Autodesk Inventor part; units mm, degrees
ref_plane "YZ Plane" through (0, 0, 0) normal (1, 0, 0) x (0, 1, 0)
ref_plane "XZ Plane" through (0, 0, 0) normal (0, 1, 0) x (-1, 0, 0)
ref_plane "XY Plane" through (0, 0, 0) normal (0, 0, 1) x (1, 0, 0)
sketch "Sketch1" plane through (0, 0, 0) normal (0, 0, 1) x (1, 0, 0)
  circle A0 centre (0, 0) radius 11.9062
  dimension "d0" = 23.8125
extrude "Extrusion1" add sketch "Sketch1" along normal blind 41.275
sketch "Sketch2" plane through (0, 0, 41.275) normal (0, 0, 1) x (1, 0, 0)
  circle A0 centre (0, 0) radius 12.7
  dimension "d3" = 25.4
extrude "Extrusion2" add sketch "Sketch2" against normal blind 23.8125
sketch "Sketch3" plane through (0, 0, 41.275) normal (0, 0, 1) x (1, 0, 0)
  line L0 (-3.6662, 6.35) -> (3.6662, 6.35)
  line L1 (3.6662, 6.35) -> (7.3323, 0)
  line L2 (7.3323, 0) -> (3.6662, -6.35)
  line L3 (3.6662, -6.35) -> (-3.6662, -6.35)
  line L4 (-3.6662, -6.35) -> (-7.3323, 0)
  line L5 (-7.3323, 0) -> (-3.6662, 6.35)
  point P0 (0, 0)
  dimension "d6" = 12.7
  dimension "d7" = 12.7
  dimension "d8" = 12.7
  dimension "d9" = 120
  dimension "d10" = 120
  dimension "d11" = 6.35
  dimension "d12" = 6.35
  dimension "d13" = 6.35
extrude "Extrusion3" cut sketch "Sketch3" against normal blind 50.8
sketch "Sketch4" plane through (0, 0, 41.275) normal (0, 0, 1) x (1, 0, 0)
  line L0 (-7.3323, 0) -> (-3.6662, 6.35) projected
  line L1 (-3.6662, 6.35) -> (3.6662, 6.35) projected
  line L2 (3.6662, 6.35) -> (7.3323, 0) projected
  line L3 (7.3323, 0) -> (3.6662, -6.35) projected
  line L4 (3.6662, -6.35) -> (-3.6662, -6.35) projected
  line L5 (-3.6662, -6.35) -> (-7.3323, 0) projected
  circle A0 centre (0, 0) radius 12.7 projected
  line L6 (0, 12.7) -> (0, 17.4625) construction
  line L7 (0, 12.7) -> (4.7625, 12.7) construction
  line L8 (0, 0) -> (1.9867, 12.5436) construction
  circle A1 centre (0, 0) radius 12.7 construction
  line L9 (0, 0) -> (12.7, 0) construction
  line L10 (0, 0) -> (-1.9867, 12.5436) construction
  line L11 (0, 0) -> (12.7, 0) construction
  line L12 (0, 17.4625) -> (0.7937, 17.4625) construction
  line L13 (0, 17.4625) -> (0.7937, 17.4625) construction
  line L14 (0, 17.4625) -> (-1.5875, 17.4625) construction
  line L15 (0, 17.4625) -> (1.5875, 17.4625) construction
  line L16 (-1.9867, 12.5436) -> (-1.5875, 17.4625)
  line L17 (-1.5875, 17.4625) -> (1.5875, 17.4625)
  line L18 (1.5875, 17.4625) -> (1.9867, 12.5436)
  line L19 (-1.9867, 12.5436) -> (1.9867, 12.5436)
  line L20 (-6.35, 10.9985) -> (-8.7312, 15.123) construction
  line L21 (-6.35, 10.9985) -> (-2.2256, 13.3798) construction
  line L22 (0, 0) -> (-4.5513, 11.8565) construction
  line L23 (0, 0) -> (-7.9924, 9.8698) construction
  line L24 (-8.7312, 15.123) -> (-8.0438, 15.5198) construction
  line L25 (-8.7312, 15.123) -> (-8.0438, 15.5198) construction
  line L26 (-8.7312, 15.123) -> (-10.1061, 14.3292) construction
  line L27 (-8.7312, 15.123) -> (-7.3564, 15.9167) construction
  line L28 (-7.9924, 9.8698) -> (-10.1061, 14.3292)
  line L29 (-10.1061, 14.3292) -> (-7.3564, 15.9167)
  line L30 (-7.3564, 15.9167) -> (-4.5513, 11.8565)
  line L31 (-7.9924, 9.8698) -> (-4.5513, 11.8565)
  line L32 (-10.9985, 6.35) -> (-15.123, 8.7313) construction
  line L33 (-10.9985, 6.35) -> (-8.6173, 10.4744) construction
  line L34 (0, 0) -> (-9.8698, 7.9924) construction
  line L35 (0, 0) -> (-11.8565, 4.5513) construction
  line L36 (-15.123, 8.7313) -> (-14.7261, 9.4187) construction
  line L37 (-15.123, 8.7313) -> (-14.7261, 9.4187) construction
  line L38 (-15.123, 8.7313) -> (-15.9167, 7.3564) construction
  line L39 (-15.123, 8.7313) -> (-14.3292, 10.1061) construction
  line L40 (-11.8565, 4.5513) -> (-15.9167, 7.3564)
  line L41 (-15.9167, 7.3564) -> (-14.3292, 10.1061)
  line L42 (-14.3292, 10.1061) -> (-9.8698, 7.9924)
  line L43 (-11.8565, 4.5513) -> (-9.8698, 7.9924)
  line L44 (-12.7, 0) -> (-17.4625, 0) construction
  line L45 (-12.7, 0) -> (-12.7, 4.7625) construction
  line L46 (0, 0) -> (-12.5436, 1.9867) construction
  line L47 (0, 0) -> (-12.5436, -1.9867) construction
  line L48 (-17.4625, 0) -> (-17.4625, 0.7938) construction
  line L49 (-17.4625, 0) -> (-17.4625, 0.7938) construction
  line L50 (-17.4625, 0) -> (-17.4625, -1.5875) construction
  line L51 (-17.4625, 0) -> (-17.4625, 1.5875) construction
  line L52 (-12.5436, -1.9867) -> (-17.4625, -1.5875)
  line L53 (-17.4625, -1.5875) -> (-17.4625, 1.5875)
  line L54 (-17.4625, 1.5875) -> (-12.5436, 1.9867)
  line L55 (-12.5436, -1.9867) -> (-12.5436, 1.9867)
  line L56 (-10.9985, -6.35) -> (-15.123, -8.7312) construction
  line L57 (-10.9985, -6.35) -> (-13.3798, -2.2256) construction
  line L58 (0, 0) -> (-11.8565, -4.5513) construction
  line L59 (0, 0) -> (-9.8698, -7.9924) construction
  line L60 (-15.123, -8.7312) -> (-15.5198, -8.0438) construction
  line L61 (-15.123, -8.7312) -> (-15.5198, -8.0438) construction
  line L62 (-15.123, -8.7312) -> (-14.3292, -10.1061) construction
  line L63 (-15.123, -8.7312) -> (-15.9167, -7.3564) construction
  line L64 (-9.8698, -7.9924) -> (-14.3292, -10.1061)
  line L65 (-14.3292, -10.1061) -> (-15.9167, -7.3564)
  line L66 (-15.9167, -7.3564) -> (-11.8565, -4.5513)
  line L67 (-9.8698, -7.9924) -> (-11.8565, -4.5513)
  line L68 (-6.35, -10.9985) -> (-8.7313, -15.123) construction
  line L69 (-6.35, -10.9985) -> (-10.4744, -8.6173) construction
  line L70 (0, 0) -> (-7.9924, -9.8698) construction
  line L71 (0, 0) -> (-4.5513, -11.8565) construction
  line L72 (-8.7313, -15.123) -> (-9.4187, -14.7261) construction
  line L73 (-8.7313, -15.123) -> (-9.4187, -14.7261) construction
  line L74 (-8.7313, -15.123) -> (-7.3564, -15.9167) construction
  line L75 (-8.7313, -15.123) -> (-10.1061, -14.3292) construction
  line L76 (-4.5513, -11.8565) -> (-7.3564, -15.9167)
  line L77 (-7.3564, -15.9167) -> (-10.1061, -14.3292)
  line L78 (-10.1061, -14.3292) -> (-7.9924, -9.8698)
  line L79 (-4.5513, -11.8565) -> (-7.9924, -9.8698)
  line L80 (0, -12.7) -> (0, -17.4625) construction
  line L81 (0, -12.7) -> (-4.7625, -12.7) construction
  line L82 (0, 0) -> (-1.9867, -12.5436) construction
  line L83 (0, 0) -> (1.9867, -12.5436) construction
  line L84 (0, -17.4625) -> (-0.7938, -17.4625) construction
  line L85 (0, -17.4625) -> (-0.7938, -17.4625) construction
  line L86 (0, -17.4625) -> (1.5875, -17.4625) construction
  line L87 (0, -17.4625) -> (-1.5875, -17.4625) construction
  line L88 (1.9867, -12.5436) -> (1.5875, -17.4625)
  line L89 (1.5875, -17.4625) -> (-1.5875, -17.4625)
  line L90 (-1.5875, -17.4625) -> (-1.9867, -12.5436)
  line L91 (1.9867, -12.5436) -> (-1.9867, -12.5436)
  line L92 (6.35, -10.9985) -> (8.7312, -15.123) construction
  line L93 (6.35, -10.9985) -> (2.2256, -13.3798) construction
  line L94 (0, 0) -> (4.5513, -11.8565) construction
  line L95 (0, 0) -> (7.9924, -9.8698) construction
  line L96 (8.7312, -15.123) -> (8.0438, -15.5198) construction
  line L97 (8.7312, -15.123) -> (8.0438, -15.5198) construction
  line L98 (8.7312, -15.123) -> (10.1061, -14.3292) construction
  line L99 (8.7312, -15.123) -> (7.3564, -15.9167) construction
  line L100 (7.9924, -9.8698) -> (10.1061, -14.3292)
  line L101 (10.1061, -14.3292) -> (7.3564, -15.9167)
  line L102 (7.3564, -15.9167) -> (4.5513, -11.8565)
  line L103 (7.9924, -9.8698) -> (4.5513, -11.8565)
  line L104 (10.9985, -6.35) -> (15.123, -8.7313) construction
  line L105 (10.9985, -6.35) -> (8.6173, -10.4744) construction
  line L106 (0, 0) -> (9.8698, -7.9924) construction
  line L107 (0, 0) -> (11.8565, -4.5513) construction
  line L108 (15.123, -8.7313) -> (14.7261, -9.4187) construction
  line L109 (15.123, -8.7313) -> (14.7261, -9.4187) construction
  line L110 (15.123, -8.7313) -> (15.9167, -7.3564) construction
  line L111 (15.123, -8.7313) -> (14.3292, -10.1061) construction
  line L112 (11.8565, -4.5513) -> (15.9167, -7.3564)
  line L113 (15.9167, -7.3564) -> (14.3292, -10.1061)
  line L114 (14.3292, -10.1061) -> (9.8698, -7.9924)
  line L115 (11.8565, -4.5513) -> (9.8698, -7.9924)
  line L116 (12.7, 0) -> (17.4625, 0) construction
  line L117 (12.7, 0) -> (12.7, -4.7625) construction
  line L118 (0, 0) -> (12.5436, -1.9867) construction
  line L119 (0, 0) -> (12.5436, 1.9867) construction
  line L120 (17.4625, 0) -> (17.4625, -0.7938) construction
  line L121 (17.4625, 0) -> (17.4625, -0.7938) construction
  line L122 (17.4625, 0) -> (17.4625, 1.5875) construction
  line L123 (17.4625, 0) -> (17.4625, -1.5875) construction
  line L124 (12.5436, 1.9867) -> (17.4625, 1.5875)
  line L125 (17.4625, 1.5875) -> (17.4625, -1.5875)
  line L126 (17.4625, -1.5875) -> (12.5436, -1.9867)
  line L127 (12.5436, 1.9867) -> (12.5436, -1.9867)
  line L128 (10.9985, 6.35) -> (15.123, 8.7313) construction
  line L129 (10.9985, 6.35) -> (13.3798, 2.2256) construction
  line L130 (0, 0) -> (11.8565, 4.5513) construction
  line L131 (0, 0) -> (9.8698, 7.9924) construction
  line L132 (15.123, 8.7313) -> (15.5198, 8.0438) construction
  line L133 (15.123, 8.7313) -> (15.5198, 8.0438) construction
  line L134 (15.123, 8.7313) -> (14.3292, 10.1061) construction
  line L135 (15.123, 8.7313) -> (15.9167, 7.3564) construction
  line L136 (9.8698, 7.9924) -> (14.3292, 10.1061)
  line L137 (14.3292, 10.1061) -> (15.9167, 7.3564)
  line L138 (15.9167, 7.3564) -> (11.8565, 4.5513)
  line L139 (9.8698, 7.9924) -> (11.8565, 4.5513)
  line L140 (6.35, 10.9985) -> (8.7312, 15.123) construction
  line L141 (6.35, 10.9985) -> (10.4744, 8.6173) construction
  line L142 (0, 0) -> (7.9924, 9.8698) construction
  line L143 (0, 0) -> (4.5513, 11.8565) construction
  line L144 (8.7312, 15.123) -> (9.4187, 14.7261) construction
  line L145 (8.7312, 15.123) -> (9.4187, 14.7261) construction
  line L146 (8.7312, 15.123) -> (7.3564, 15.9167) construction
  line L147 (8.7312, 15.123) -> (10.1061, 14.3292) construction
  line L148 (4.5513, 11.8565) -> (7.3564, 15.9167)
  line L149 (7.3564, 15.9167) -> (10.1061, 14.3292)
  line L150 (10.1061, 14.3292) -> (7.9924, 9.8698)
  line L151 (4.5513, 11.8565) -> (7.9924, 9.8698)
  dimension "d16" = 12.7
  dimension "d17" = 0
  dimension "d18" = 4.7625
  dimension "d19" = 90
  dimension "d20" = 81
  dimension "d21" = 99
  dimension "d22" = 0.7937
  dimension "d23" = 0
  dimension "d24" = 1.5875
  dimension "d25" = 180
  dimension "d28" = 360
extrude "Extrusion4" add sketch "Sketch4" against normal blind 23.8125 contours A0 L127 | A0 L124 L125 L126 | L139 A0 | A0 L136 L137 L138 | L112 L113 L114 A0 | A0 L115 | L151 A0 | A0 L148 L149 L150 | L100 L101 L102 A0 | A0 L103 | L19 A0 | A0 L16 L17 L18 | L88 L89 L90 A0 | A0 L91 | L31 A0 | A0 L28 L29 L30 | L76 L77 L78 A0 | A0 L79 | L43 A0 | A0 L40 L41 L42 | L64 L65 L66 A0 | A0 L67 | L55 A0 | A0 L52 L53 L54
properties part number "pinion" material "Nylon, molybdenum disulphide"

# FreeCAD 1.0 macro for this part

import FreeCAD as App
import Part
import Sketcher
from FreeCAD import Vector
Q = App.Units.Quantity


def add_polygon(sketch, points):
    """Adds a closed chain of lines whose ends are joined by coincident constraints."""
    first, n = sketch.GeometryCount, len(points)
    for a, b in zip(points, points[1:] + points[:1]):
        sketch.addGeometry(Part.LineSegment(App.Vector(*a, 0), App.Vector(*b, 0)), False)
    for i in range(n):
        sketch.addConstraint(Sketcher.Constraint("Coincident", first + i, 2, first + (i + 1) % n, 1))

doc = App.newDocument("Part")
body = doc.addObject("PartDesign::Body", "Body")

# Sketch on XY plane
sketch1 = body.newObject("Sketcher::SketchObject", "Sketch")
sketch1.AttachmentSupport = (doc.getObject("XY_Plane"), [""])
sketch1.MapMode = "FlatFace"
sketch1.addGeometry(Part.Circle(Vector(0, 0, 0), Vector(0, 0, 1), 11.9062), False)
sketch1.addConstraint(Sketcher.Constraint("Coincident", 0, 3, -1, 1))
sketch1.addConstraint(Sketcher.Constraint("Diameter", 0, Q("0.9375 in")))
pad1 = body.newObject("PartDesign::Pad", "Pad")
pad1.Profile = sketch1
pad1.Length = Q("1.625 in")

# Sketch on XY plane
sketch2 = body.newObject("Sketcher::SketchObject", "Sketch001")
sketch2.AttachmentSupport = (doc.getObject("XY_Plane"), [""])
sketch2.MapMode = "FlatFace"
sketch2.AttachmentOffset = App.Placement(Vector(0, 0, 1.625 * 25.4), App.Rotation())
sketch2.addGeometry(Part.Circle(Vector(0, 0, 0), Vector(0, 0, 1), 12.7), False)
sketch2.addConstraint(Sketcher.Constraint("Coincident", 0, 3, -1, 1))
sketch2.addConstraint(Sketcher.Constraint("Diameter", 0, Q("1 in")))
pad2 = body.newObject("PartDesign::Pad", "Pad001")
pad2.Profile = sketch2
pad2.Length = Q("0.9375 in")
pad2.Reversed = True

# Sketch on XY plane
sketch3 = body.newObject("Sketcher::SketchObject", "Sketch002")
sketch3.AttachmentSupport = (doc.getObject("XY_Plane"), [""])
sketch3.MapMode = "FlatFace"
sketch3.AttachmentOffset = App.Placement(Vector(0, 0, 1.625 * 25.4), App.Rotation())
add_polygon(sketch3, [(3.6662, 6.35), (-3.6662, 6.35), (-7.3323, 0), (-3.6662, -6.35), (3.6662, -6.35), (7.3323, 0)])  # lines 0-5
sketch3.addConstraint(Sketcher.Constraint("Horizontal", 0))
sketch3.addConstraint(Sketcher.Constraint("Horizontal", 3))
sketch3.addConstraint(Sketcher.Constraint("Symmetric", 0, 2, 3, 2, -1, 1))
sketch3.addConstraint(Sketcher.Constraint("Symmetric", 1, 2, 4, 2, -1, 1))
sketch3.addConstraint(Sketcher.Constraint("PointOnObject", 1, 2, -1))
sketch3.addConstraint(Sketcher.Constraint("Parallel", 2, 5))
sketch3.addConstraint(Sketcher.Constraint("Vertical", 0, 2, 2, 2))
sketch3.addConstraint(Sketcher.Constraint("Angle", 1, Q("-119.9995 deg")))
sketch3.addConstraint(Sketcher.Constraint("DistanceY", 2, 2, 0, 2, Q("0.5 in")))
sketch3.addConstraint(Sketcher.Constraint("DistanceX", 1, 2, 3, 2, Q("0.433 in")))
pocket1 = body.newObject("PartDesign::Pocket", "Pocket")
pocket1.Profile = sketch3
pocket1.Length = Q("2 in")

# Sketch on XY plane
sketch4 = body.newObject("Sketcher::SketchObject", "Sketch003")
sketch4.AttachmentSupport = (doc.getObject("XY_Plane"), [""])
sketch4.MapMode = "FlatFace"
sketch4.AttachmentOffset = App.Placement(Vector(0, 0, 1.625 * 25.4), App.Rotation())
add_polygon(sketch4, [(12.5436, 1.9867), (12.5436, -1.9867), (17.4625, -1.5875), (17.4625, 1.5875)])  # lines 0-3
add_polygon(sketch4, [(9.8698, 7.9924), (11.8565, 4.5513), (15.9167, 7.3564), (14.3292, 10.1061)])  # lines 4-7
add_polygon(sketch4, [(15.9167, -7.3564), (11.8565, -4.5513), (9.8698, -7.9924), (14.3292, -10.1061)])  # lines 8-11
add_polygon(sketch4, [(4.5513, 11.8565), (7.9924, 9.8698), (10.1061, 14.3292), (7.3564, 15.9167)])  # lines 12-15
add_polygon(sketch4, [(10.1061, -14.3292), (7.9924, -9.8698), (4.5513, -11.8565), (7.3564, -15.9167)])  # lines 16-19
add_polygon(sketch4, [(-1.9867, 12.5436), (1.9867, 12.5436), (1.5875, 17.4625), (-1.5875, 17.4625)])  # lines 20-23
add_polygon(sketch4, [(1.5875, -17.4625), (1.9867, -12.5436), (-1.9867, -12.5436), (-1.5875, -17.4625)])  # lines 24-27
add_polygon(sketch4, [(-7.9924, 9.8698), (-4.5513, 11.8565), (-7.3564, 15.9167), (-10.1061, 14.3292)])  # lines 28-31
add_polygon(sketch4, [(-7.3564, -15.9167), (-4.5513, -11.8565), (-7.9924, -9.8698), (-10.1061, -14.3292)])  # lines 32-35
add_polygon(sketch4, [(-11.8565, 4.5513), (-9.8698, 7.9924), (-14.3292, 10.1061), (-15.9167, 7.3564)])  # lines 36-39
add_polygon(sketch4, [(-14.3292, -10.1061), (-9.8698, -7.9924), (-11.8565, -4.5513), (-15.9167, -7.3564)])  # lines 40-43
add_polygon(sketch4, [(-12.5436, -1.9867), (-12.5436, 1.9867), (-17.4625, 1.5875), (-17.4625, -1.5875)])  # lines 44-47
sketch4.addConstraint(Sketcher.Constraint("Vertical", 0))
sketch4.addConstraint(Sketcher.Constraint("Vertical", 2))
sketch4.addConstraint(Sketcher.Constraint("Horizontal", 20))
sketch4.addConstraint(Sketcher.Constraint("Horizontal", 22))
sketch4.addConstraint(Sketcher.Constraint("Horizontal", 25))
sketch4.addConstraint(Sketcher.Constraint("Horizontal", 27))
sketch4.addConstraint(Sketcher.Constraint("Vertical", 44))
sketch4.addConstraint(Sketcher.Constraint("Vertical", 46))
sketch4.addConstraint(Sketcher.Constraint("Symmetric", 23, 2, 24, 2, -1, 1))
sketch4.addConstraint(Sketcher.Constraint("Symmetric", 21, 2, 26, 2, -1, 1))
sketch4.addConstraint(Sketcher.Constraint("Symmetric", 17, 2, 28, 2, -1, 1))
sketch4.addConstraint(Sketcher.Constraint("Symmetric", 18, 2, 29, 2, -1, 1))
sketch4.addConstraint(Sketcher.Constraint("Symmetric", 19, 2, 30, 2, -1, 1))
sketch4.addConstraint(Sketcher.Constraint("Symmetric", 16, 2, 31, 2, -1, 1))
sketch4.addConstraint(Sketcher.Constraint("Symmetric", 15, 2, 32, 2, -1, 1))
sketch4.addConstraint(Sketcher.Constraint("Symmetric", 12, 2, 33, 2, -1, 1))
sketch4.addConstraint(Sketcher.Constraint("Symmetric", 13, 2, 34, 2, -1, 1))
sketch4.addConstraint(Sketcher.Constraint("Symmetric", 14, 2, 35, 2, -1, 1))
sketch4.addConstraint(Sketcher.Constraint("Symmetric", 9, 2, 36, 2, -1, 1))
sketch4.addConstraint(Sketcher.Constraint("Symmetric", 10, 2, 37, 2, -1, 1))
sketch4.addConstraint(Sketcher.Constraint("Symmetric", 11, 2, 38, 2, -1, 1))
sketch4.addConstraint(Sketcher.Constraint("Symmetric", 8, 2, 39, 2, -1, 1))
sketch4.addConstraint(Sketcher.Constraint("Symmetric", 7, 2, 40, 2, -1, 1))
sketch4.addConstraint(Sketcher.Constraint("Symmetric", 4, 2, 41, 2, -1, 1))
sketch4.addConstraint(Sketcher.Constraint("Symmetric", 5, 2, 42, 2, -1, 1))
sketch4.addConstraint(Sketcher.Constraint("Symmetric", 6, 2, 43, 2, -1, 1))
sketch4.addConstraint(Sketcher.Constraint("Symmetric", 0, 2, 44, 2, -1, 1))
sketch4.addConstraint(Sketcher.Constraint("Symmetric", 1, 2, 45, 2, -1, 1))
sketch4.addConstraint(Sketcher.Constraint("Symmetric", 15, 2, 28, 2, -2))
sketch4.addConstraint(Sketcher.Constraint("Symmetric", 14, 2, 29, 2, -2))
sketch4.addConstraint(Sketcher.Constraint("Symmetric", 13, 2, 30, 2, -2))
sketch4.addConstraint(Sketcher.Constraint("Symmetric", 12, 2, 31, 2, -2))
sketch4.addConstraint(Sketcher.Constraint("Symmetric", 7, 2, 36, 2, -2))
sketch4.addConstraint(Sketcher.Constraint("Symmetric", 6, 2, 37, 2, -2))
sketch4.addConstraint(Sketcher.Constraint("Symmetric", 5, 2, 38, 2, -2))
sketch4.addConstraint(Sketcher.Constraint("Symmetric", 4, 2, 39, 2, -2))
sketch4.addConstraint(Sketcher.Constraint("Parallel", 4, 6))
sketch4.addConstraint(Sketcher.Constraint("Perpendicular", 11, 12))
sketch4.addConstraint(Sketcher.Constraint("Perpendicular", 10, 13))
sketch4.addConstraint(Sketcher.Constraint("Parallel", 12, 14))
sketch4.addConstraint(Sketcher.Constraint("Perpendicular", 8, 15))
sketch4.addConstraint(Sketcher.Constraint("Perpendicular", 1, 21))
sketch4.addConstraint(Sketcher.Constraint("Perpendicular", 3, 23))
sketch4.addConstraint(Sketcher.Constraint("Parallel", 23, 24))
sketch4.addConstraint(Sketcher.Constraint("Parallel", 21, 26))
sketch4.addConstraint(Sketcher.Constraint("Perpendicular", 24, 47))
sketch4.addConstraint(Sketcher.Constraint("Horizontal", 3, 2, 44, 2))
sketch4.addConstraint(Sketcher.Constraint("Horizontal", 2, 2, 45, 2))
sketch4.addConstraint(Sketcher.Constraint("Horizontal", 1, 2, 46, 2))
sketch4.addConstraint(Sketcher.Constraint("Vertical", 20, 2, 24, 2))
sketch4.addConstraint(Sketcher.Constraint("Equal", 25, 0))
sketch4.addConstraint(Sketcher.Constraint("Equal", 27, 2))
sketch4.addConstraint(Sketcher.Constraint("Equal", 3, 5))
sketch4.addConstraint(Sketcher.Constraint("Equal", 5, 7))
sketch4.addConstraint(Sketcher.Constraint("Equal", 9, 12))
sketch4.addConstraint(Sketcher.Constraint("Equal", 10, 13))
sketch4.addConstraint(Sketcher.Constraint("DistanceY", 1, 2, -1, 1, Q("0.0625 in")))
sketch4.addConstraint(Sketcher.Constraint("Angle", 4, Q("-60.0002 deg")))
sketch4.addConstraint(Sketcher.Constraint("DistanceX", 6, 2, 5, 2, Q("0.0625 in")))
sketch4.addConstraint(Sketcher.Constraint("Angle", 1, Q("4.6397 deg")))
sketch4.addConstraint(Sketcher.Constraint("Angle", 5, Q("34.6397 deg")))
sketch4.addConstraint(Sketcher.Constraint("DistanceX", -1, 1, 1, 2, Q("0.6875 in")))
sketch4.addConstraint(Sketcher.Constraint("DistanceY", -1, 1, 21, 2, Q("0.6875 in")))
sketch4.addConstraint(Sketcher.Constraint("Distance", 1, Q("0.1943 in")))
sketch4.addConstraint(Sketcher.Constraint("DistanceX", -1, 1, 4, 2, Q("0.4668 in")))
sketch4.addConstraint(Sketcher.Constraint("DistanceY", -1, 1, 15, 2, Q("0.4668 in")))
sketch4.addConstraint(Sketcher.Constraint("DistanceY", 0, 2, 4, 2, Q("0.2574 in")))
sketch4.addConstraint(Sketcher.Constraint("DistanceX", 7, 2, 13, 2, Q("0.0093 in")))
pad3 = body.newObject("PartDesign::Pad", "Pad002")
pad3.Profile = sketch4
pad3.Length = Q("0.9375 in")
pad3.Reversed = True

doc.recompute()
